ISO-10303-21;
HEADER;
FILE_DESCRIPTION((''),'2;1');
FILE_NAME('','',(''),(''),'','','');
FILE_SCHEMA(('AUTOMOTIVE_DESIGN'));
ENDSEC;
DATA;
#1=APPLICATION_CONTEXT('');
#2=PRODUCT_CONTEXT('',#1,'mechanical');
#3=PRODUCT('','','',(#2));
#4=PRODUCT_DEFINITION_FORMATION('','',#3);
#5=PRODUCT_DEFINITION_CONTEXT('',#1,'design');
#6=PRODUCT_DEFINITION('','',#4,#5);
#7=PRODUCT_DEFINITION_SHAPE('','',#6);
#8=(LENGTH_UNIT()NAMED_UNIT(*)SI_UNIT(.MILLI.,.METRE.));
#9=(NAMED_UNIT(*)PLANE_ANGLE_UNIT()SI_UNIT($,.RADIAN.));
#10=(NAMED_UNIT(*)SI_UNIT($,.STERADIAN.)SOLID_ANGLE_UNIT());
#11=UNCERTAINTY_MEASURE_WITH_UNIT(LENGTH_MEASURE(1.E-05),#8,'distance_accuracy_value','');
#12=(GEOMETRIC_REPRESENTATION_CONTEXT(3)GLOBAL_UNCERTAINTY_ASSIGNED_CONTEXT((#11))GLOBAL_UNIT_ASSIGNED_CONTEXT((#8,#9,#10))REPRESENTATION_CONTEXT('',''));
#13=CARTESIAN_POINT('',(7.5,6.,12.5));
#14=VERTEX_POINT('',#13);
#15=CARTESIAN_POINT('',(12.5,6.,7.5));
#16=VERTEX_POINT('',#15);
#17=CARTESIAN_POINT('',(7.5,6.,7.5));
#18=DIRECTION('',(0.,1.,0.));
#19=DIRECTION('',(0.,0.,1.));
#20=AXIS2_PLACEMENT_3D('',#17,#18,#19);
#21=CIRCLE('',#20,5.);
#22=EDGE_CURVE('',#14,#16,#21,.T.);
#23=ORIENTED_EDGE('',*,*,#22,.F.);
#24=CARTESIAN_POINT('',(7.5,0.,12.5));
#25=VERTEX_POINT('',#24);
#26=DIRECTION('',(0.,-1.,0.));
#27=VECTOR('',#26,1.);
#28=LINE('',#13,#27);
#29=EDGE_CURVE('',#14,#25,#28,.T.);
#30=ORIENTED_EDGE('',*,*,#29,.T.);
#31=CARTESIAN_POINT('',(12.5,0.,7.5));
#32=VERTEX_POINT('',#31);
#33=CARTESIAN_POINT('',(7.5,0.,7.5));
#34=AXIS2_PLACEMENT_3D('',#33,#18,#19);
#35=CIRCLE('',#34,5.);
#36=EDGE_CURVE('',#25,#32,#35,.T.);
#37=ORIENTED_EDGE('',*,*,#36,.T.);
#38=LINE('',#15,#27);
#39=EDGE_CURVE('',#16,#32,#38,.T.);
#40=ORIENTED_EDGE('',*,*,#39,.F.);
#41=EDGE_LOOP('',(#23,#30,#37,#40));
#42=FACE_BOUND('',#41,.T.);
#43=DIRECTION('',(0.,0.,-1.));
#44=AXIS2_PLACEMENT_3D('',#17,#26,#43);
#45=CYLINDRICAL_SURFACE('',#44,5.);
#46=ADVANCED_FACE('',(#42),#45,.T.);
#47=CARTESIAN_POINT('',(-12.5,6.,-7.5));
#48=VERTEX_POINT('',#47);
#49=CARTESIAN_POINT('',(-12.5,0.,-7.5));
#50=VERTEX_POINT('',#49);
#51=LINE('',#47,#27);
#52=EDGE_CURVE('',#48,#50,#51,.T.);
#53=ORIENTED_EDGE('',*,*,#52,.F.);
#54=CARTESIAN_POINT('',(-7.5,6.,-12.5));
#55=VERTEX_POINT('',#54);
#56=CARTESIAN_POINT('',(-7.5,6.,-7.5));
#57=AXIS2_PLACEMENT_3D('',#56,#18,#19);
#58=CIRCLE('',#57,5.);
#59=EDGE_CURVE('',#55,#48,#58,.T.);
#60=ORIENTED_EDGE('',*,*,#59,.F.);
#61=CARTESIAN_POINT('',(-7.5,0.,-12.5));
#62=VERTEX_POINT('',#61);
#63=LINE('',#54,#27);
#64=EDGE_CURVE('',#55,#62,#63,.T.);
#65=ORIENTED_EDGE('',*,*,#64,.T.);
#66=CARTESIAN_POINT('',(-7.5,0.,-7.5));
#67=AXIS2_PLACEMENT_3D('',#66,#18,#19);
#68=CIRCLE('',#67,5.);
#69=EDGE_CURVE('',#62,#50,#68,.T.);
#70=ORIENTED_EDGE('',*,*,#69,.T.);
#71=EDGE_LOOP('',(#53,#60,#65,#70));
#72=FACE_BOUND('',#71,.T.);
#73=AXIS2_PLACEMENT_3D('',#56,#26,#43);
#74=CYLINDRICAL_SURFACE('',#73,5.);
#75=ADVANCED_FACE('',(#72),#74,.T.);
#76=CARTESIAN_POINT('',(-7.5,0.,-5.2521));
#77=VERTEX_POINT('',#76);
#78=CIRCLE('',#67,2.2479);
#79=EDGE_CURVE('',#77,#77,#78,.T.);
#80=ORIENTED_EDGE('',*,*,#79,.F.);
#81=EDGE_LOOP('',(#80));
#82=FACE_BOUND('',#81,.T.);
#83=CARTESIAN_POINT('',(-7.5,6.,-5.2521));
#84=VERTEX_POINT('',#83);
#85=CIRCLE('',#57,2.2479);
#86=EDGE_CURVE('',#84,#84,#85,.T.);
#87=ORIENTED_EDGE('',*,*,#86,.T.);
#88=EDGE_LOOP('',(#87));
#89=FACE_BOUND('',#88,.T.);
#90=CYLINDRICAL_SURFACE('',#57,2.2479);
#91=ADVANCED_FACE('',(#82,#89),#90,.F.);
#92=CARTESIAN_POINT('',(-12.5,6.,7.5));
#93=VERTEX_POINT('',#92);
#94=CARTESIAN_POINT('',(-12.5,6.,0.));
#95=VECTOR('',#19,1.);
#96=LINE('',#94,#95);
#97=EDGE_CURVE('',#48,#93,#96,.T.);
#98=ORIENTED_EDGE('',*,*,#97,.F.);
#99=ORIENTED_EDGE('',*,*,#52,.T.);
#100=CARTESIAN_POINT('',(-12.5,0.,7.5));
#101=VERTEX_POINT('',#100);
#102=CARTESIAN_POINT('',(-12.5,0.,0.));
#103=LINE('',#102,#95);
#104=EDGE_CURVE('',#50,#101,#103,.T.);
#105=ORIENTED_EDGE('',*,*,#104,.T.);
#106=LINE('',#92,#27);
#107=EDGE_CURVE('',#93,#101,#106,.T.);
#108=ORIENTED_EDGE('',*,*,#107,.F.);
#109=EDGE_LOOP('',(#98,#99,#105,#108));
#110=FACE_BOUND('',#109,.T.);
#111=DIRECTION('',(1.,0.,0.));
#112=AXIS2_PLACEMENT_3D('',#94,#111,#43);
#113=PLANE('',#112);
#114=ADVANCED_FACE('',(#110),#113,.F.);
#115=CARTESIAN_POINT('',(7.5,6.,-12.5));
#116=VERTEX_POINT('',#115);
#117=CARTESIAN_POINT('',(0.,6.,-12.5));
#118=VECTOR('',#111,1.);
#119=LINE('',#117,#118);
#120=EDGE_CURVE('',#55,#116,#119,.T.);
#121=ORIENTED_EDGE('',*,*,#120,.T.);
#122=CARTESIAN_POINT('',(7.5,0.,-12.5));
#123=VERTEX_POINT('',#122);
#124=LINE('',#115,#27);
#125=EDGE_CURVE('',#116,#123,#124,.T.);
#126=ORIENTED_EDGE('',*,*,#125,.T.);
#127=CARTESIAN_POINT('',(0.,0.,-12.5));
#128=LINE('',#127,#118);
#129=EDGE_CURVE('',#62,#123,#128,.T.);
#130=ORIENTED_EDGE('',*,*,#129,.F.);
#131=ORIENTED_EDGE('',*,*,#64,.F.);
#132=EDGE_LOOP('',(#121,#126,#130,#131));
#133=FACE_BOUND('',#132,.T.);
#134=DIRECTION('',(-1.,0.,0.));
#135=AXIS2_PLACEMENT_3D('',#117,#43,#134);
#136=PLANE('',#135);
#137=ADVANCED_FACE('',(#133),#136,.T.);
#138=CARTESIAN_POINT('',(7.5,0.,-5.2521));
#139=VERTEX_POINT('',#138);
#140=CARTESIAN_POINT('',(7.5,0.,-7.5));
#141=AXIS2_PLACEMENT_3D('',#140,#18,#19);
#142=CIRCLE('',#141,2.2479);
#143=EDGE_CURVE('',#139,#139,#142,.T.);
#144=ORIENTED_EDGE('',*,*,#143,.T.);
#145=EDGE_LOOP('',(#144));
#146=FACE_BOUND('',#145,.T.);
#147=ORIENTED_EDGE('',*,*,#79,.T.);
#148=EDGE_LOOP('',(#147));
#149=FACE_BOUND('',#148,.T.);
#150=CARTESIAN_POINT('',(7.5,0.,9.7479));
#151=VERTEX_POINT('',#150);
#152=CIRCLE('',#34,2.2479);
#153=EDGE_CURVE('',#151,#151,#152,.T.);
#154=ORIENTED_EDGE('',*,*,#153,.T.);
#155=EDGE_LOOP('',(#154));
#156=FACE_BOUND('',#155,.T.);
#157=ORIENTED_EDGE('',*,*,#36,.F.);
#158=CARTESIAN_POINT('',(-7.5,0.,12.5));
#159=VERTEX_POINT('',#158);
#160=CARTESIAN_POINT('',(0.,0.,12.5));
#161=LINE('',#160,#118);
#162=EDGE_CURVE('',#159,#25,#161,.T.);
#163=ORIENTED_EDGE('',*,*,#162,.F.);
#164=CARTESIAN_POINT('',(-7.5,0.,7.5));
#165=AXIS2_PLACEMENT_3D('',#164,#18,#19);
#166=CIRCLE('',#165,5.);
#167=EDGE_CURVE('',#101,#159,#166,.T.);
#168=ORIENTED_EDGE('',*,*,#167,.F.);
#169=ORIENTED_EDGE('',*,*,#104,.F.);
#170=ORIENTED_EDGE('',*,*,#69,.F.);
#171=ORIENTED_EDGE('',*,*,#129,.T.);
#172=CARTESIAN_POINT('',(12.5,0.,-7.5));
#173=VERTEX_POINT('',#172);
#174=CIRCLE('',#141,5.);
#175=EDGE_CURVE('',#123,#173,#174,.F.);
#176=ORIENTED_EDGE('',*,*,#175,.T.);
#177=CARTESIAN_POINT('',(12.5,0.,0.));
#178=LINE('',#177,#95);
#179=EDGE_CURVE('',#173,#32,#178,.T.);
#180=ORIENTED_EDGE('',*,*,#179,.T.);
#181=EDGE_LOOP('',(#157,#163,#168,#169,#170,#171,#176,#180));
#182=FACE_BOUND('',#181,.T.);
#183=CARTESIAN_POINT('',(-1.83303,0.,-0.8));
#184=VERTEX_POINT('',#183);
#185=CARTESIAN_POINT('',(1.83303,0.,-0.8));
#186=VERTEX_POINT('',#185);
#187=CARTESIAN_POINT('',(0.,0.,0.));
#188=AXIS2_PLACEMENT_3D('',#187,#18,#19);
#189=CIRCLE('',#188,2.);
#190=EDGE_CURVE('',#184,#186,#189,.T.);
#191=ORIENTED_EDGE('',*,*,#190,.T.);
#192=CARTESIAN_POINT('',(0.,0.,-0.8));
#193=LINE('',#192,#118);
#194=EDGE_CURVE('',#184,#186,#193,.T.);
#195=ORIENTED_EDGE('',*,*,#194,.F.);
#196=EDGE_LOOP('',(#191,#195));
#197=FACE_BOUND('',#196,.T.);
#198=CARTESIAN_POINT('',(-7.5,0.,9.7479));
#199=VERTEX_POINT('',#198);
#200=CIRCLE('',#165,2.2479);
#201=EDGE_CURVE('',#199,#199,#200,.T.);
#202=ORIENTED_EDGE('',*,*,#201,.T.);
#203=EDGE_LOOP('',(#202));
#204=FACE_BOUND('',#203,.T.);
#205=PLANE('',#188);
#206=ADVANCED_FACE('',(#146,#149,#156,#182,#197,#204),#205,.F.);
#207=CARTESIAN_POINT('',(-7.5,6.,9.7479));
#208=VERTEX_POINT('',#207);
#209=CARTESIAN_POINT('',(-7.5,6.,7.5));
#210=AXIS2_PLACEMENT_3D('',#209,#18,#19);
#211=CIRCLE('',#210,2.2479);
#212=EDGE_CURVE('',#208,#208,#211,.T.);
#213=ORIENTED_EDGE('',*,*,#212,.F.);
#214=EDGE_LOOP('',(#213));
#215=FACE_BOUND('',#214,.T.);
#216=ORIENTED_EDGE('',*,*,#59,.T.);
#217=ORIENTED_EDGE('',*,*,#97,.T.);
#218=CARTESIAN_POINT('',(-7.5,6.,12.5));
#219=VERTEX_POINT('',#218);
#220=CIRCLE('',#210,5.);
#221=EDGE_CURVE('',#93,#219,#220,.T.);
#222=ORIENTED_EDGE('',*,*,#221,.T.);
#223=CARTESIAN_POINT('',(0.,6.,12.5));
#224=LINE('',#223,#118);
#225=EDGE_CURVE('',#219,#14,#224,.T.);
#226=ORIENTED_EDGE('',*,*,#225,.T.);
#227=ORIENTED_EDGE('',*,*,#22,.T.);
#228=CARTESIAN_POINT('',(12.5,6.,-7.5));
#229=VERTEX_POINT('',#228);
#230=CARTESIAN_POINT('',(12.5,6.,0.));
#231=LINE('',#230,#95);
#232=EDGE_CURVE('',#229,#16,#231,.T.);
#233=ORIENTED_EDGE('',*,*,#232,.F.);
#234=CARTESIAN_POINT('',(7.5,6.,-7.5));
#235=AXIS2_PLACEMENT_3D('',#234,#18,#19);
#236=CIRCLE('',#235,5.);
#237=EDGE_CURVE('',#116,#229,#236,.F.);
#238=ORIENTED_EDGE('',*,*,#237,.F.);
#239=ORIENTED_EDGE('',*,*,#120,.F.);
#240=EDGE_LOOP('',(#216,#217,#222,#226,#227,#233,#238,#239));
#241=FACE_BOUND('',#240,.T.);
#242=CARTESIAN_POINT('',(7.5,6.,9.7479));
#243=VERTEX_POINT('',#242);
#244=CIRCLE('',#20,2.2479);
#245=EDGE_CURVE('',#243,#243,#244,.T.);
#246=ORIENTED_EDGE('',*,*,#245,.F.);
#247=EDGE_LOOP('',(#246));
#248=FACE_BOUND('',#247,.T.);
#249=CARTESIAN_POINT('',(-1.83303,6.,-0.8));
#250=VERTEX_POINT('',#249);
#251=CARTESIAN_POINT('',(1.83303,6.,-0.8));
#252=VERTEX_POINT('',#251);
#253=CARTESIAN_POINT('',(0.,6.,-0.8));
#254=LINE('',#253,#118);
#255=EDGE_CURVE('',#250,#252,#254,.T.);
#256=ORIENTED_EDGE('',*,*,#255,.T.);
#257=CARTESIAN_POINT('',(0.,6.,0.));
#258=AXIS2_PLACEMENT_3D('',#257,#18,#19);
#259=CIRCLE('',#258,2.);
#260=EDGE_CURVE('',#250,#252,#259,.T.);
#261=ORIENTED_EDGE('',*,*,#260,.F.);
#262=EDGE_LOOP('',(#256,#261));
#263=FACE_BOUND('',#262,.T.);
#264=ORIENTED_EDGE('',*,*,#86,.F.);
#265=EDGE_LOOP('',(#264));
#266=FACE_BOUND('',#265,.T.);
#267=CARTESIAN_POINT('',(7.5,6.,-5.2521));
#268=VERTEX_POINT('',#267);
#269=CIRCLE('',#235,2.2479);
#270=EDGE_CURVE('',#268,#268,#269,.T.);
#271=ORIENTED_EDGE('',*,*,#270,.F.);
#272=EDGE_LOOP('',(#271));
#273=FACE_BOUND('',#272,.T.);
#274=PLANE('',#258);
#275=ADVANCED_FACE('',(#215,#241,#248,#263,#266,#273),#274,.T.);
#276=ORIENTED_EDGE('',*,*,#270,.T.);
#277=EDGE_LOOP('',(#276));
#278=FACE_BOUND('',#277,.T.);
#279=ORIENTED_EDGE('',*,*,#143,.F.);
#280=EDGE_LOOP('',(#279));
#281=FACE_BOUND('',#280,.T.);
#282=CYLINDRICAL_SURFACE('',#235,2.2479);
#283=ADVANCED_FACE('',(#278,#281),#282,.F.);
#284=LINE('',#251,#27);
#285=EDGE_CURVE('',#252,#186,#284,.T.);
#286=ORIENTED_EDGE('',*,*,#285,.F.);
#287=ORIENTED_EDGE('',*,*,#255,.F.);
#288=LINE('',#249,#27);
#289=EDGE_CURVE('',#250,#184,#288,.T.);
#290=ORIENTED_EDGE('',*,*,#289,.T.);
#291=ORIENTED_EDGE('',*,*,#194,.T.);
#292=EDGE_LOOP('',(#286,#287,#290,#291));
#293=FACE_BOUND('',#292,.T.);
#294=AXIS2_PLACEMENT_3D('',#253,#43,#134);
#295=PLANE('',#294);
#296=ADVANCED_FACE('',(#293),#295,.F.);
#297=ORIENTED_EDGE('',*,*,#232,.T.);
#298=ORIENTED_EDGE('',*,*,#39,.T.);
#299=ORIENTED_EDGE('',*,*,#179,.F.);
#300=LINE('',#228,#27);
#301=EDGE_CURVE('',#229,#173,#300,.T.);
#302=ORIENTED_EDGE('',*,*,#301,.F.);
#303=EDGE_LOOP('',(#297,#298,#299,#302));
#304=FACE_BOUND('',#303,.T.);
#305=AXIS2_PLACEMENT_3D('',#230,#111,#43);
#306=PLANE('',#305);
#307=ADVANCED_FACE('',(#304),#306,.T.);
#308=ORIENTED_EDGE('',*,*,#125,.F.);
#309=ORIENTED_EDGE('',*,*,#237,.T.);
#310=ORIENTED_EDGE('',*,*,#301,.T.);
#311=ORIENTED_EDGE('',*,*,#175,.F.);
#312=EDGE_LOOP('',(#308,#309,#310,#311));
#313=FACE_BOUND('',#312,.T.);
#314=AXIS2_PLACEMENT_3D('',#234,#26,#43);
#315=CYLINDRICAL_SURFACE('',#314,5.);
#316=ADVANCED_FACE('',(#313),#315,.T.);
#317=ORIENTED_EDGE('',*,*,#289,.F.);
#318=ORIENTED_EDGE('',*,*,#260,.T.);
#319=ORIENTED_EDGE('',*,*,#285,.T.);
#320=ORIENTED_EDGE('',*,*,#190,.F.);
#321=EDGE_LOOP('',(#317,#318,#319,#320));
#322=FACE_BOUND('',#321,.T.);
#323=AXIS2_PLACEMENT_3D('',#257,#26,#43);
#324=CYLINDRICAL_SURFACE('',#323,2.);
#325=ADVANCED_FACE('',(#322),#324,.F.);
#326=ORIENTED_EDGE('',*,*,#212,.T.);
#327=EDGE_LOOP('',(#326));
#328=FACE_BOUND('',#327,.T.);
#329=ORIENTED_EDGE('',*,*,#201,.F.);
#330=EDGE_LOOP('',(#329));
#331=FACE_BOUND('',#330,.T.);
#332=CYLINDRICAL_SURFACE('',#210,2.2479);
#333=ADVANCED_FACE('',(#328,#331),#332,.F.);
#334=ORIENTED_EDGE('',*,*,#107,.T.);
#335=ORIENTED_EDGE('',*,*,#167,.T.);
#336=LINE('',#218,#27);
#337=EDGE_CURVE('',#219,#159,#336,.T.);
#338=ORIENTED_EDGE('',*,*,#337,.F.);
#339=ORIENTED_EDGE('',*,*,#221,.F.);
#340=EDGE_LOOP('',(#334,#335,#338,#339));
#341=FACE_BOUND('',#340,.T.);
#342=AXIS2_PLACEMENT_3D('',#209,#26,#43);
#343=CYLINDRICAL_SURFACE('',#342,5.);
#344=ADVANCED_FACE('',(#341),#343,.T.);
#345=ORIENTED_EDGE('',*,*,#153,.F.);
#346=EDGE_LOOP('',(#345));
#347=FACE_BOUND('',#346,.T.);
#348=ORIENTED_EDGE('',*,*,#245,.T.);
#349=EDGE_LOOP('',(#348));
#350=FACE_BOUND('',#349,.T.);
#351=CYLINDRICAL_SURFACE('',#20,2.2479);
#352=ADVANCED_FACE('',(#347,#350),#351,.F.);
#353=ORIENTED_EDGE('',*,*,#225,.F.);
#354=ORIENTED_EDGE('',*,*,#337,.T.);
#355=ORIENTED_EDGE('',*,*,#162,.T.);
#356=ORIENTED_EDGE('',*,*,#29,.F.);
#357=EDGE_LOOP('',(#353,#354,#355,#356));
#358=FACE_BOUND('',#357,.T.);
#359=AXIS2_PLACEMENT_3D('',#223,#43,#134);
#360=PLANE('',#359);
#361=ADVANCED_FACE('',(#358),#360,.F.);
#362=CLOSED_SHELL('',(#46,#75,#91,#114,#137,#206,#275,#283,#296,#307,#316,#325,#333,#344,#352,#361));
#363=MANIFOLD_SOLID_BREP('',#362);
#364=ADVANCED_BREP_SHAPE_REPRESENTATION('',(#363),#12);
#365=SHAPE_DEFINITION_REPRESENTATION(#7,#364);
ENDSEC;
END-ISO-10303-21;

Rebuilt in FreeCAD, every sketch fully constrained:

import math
import FreeCAD as App
import Part
import Sketcher

doc = App.newDocument("Part")
params = doc.addObject("Spreadsheet::Sheet", "Params")
for row, (alias, value) in enumerate([
    ("sketch1_radius", "5 mm"),
    ("sketch1_radius2", "2 mm"),
    ("sketch1_width", "15 mm"),
    ("pad1_length", "6 mm"),
    ("hole_diameter", "4.4958 mm"),
], start=1):
    params.set(f"A{row}", alias)
    params.set(f"B{row}", "=" + value)
    params.setAlias(f"B{row}", alias)

body = doc.addObject("PartDesign::Body", "Body")

# Sketch on XZ plane
sketch1 = body.newObject("Sketcher::SketchObject", "Sketch")
sketch1.AttachmentSupport = (doc.getObject("XZ_Plane"), [""])
sketch1.MapMode = "FlatFace"
sketch1.addGeometry([
    Part.LineSegment(App.Vector(7.5, -12.5, 0), App.Vector(-7.5, -12.5, 0)),  # 0
    Part.ArcOfCircle(Part.Circle(App.Vector(-7.5, -7.5, 0), App.Vector(0, 0, 1), 5), math.radians(180), math.radians(270)),  # 1
    Part.LineSegment(App.Vector(-12.5, -7.5, 0), App.Vector(-12.5, 7.5, 0)),  # 2
    Part.ArcOfCircle(Part.Circle(App.Vector(-7.5, 7.5, 0), App.Vector(0, 0, 1), 5), math.radians(90), math.radians(180)),  # 3
    Part.LineSegment(App.Vector(-7.5, 12.5, 0), App.Vector(7.5, 12.5, 0)),  # 4
    Part.ArcOfCircle(Part.Circle(App.Vector(7.5, 7.5, 0), App.Vector(0, 0, 1), 5), math.radians(0), math.radians(90)),  # 5
    Part.LineSegment(App.Vector(12.5, 7.5, 0), App.Vector(12.5, -7.5, 0)),  # 6
    Part.ArcOfCircle(Part.Circle(App.Vector(7.5, -7.5, 0), App.Vector(0, 0, 1), 5), math.radians(-90), math.radians(0)),  # 7
    Part.ArcOfCircle(Part.Circle(App.Vector(0, 0, 0), App.Vector(0, 0, 1), 2), math.radians(-24), math.radians(204)),  # 8
    Part.LineSegment(App.Vector(-1.8, -0.8, 0), App.Vector(1.8, -0.8, 0)),  # 9
], False)
sketch1.addConstraint([
    Sketcher.Constraint("Tangent", 0, 2, 1, 2),
    Sketcher.Constraint("Tangent", 1, 1, 2, 1),
    Sketcher.Constraint("Tangent", 2, 2, 3, 2),
    Sketcher.Constraint("Tangent", 3, 1, 4, 1),
    Sketcher.Constraint("Tangent", 4, 2, 5, 2),
    Sketcher.Constraint("Tangent", 5, 1, 6, 1),
    Sketcher.Constraint("Tangent", 6, 2, 7, 2),
    Sketcher.Constraint("Tangent", 7, 1, 0, 1),
    Sketcher.Constraint("Coincident", 8, 1, 9, 2),
    Sketcher.Constraint("Coincident", 9, 1, 8, 2),
    Sketcher.Constraint("Horizontal", 0),
    Sketcher.Constraint("Vertical", 2),
    Sketcher.Constraint("Horizontal", 4),
    Sketcher.Constraint("Vertical", 6),
    Sketcher.Constraint("Horizontal", 9),
    Sketcher.Constraint("Coincident", 8, 3, -1, 1),
    Sketcher.Constraint("Equal", 1, 3),
    Sketcher.Constraint("Equal", 3, 5),
    Sketcher.Constraint("Equal", 5, 7),
    Sketcher.Constraint("Symmetric", 1, 3, 5, 3, -1, 1),
    Sketcher.Constraint("Equal", 4, 2),
    Sketcher.Constraint("Radius", 1, 5.0),
    Sketcher.Constraint("Radius", 8, 2.0),
    Sketcher.Constraint("DistanceX", 0, 2, 0, 1, 15.0),
    Sketcher.Constraint("DistanceY", 8, 1, -1, 1, 0.8),
])
sketch1.setExpression("Constraints[21]", "Params.sketch1_radius")
sketch1.setExpression("Constraints[22]", "Params.sketch1_radius2")
sketch1.setExpression("Constraints[23]", "Params.sketch1_width")
pad1 = body.newObject("PartDesign::Pad", "Pad")
pad1.Profile = sketch1
pad1.setExpression("Length", "Params.pad1_length")
pad1.Reversed = True

# Sketch on XZ plane
sketch2 = body.newObject("Sketcher::SketchObject", "Sketch001")
sketch2.AttachmentSupport = (doc.getObject("XZ_Plane"), [""])
sketch2.MapMode = "FlatFace"
sketch2.AttachmentOffset = App.Placement(App.Vector(0, 0, -6), App.Rotation())
sketch2.addGeometry([
    Part.Circle(App.Vector(-7.5, -7.5, 0), App.Vector(0, 0, 1), 2.2),
    Part.Circle(App.Vector(7.5, -7.5, 0), App.Vector(0, 0, 1), 2.2),
    Part.Circle(App.Vector(-7.5, 7.5, 0), App.Vector(0, 0, 1), 2.2),
    Part.Circle(App.Vector(7.5, 7.5, 0), App.Vector(0, 0, 1), 2.2),
], False)
sketch2.addConstraint([
    Sketcher.Constraint("Equal", 0, 1),
    Sketcher.Constraint("Equal", 1, 2),
    Sketcher.Constraint("Equal", 2, 3),
    Sketcher.Constraint("Symmetric", 1, 3, 2, 3, -1, 1),
    Sketcher.Constraint("Symmetric", 0, 3, 3, 3, -1, 1),
    Sketcher.Constraint("Symmetric", 0, 3, 1, 3, -2),
    Sketcher.Constraint("DistanceX", 0, 3, 1, 3, 15.0),
    Sketcher.Constraint("DistanceY", 0, 3, 2, 3, 15.0),
    Sketcher.Constraint("Diameter", 0, 4.4958),
])
doc.recompute()
hole = body.newObject("PartDesign::Hole", "Hole")
hole.Profile = sketch2
hole.ThreadType = "None"
hole.setExpression("Diameter", "Params.hole_diameter")
hole.DepthType = "ThroughAll"
hole.Reversed = True

doc.recompute()
